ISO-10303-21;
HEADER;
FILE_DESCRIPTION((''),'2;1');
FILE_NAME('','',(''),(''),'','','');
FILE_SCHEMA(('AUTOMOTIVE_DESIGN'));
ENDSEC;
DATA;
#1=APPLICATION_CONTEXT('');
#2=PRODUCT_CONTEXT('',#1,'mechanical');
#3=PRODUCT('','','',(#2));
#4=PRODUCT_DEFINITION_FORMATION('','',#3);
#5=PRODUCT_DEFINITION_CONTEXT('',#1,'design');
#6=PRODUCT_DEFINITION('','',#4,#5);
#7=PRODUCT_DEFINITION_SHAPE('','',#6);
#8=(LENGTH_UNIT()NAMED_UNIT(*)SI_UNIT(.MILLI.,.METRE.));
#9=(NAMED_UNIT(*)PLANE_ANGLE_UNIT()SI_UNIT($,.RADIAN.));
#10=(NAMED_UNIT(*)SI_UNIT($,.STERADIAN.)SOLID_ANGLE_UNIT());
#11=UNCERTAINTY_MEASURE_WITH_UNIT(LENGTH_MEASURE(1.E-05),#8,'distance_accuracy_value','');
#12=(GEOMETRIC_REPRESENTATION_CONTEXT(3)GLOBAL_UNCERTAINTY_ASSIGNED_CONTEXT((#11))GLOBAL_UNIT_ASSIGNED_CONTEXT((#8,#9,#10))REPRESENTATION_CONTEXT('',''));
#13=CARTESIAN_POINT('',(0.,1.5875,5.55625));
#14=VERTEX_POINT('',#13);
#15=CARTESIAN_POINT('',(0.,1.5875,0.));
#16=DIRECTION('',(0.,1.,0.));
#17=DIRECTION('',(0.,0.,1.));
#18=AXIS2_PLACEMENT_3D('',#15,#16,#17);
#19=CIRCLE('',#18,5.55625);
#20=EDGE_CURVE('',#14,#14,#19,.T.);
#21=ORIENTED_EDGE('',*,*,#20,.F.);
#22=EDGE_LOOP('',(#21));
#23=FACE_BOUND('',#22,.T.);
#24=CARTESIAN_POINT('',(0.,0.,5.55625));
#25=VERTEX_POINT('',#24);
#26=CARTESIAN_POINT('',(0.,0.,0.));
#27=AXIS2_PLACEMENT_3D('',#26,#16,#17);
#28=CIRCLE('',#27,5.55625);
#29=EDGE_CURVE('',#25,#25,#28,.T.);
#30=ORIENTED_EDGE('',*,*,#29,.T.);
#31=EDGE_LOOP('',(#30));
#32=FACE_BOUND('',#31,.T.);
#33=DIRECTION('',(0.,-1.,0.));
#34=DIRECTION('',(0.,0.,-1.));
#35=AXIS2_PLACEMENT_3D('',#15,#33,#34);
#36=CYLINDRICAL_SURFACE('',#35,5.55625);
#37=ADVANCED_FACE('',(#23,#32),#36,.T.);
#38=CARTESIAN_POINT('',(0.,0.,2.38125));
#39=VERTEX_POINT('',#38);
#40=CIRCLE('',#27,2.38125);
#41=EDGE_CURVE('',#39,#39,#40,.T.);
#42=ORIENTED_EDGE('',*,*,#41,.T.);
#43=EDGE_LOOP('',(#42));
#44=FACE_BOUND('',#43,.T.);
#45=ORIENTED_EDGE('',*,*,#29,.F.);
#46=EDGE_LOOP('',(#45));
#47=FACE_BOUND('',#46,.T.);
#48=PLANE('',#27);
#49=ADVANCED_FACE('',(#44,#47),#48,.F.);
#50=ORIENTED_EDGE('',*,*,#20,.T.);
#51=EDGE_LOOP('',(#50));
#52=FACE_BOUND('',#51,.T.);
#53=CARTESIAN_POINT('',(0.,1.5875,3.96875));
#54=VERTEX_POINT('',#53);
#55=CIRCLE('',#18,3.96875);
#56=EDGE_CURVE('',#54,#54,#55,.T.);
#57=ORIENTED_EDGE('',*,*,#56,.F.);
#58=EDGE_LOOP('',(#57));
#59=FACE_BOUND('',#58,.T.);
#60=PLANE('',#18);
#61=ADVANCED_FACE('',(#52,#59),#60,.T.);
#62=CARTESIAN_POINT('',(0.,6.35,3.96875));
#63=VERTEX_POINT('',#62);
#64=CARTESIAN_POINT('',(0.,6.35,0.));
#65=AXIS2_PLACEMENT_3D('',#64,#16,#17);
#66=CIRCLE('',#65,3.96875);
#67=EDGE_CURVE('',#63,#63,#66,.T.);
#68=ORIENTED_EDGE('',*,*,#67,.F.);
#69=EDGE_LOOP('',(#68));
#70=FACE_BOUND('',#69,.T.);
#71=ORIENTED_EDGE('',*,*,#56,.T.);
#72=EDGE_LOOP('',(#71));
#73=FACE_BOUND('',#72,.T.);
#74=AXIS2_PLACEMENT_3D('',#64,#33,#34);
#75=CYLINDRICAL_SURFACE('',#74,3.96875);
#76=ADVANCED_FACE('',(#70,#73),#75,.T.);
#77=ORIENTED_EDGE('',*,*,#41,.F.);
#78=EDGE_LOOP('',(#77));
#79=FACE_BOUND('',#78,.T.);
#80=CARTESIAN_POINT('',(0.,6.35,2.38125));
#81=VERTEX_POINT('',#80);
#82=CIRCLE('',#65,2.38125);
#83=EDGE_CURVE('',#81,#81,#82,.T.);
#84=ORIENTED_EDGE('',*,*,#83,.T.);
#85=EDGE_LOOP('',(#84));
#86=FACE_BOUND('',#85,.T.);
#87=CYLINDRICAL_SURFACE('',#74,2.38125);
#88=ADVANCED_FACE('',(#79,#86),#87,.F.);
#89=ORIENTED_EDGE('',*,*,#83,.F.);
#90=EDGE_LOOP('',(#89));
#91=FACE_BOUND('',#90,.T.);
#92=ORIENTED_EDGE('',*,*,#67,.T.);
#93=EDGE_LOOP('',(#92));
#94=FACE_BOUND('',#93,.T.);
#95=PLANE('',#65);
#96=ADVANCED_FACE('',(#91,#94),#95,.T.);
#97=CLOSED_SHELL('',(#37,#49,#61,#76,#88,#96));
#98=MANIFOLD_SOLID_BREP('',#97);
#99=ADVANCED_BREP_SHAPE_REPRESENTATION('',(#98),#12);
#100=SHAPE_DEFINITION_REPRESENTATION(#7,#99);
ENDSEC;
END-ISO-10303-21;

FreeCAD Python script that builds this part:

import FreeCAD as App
import Part
import Sketcher

V = App.Vector
Q = App.Units.Quantity

doc = App.newDocument("Part")
body = doc.addObject("PartDesign::Body", "Body")

# Sketch on XZ plane
sketch1 = body.newObject("Sketcher::SketchObject", "Sketch")
sketch1.AttachmentSupport = (doc.getObject("XZ_Plane"), [""])
sketch1.MapMode = "FlatFace"
sketch1.addGeometry([
    Part.Circle(V(0, 0, 0), V(0, 0, 1), 4),
    Part.Circle(V(0, 0, 0), V(0, 0, 1), 2.4),
], False)
sketch1.addConstraint([
    Sketcher.Constraint("Coincident", 0, 3, -1, 1),
    Sketcher.Constraint("Coincident", 1, 3, -1, 1),
    Sketcher.Constraint("Diameter", 0, Q("0.3125 in")),
    Sketcher.Constraint("Diameter", 1, Q("0.1875 in")),
])
pad1 = body.newObject("PartDesign::Pad", "Pad")
pad1.Profile = sketch1
pad1.Length = Q("0.25 in")
pad1.Reversed = True

# Sketch on XZ plane
sketch2 = body.newObject("Sketcher::SketchObject", "Sketch001")
sketch2.AttachmentSupport = (doc.getObject("XZ_Plane"), [""])
sketch2.MapMode = "FlatFace"
sketch2.addGeometry([
    Part.Circle(V(0, 0, 0), V(0, 0, 1), 5.6),
    Part.Circle(V(0, 0, 0), V(0, 0, 1), 4),
], False)
sketch2.addConstraint([
    Sketcher.Constraint("Coincident", 0, 3, -1, 1),
    Sketcher.Constraint("Coincident", 1, 3, -1, 1),
    Sketcher.Constraint("Diameter", 0, Q("0.4375 in")),
    Sketcher.Constraint("Diameter", 1, Q("0.3125 in")),
])
pad2 = body.newObject("PartDesign::Pad", "Pad001")
pad2.Profile = sketch2
pad2.Length = Q("0.0625 in")
pad2.Reversed = True

doc.recompute()
